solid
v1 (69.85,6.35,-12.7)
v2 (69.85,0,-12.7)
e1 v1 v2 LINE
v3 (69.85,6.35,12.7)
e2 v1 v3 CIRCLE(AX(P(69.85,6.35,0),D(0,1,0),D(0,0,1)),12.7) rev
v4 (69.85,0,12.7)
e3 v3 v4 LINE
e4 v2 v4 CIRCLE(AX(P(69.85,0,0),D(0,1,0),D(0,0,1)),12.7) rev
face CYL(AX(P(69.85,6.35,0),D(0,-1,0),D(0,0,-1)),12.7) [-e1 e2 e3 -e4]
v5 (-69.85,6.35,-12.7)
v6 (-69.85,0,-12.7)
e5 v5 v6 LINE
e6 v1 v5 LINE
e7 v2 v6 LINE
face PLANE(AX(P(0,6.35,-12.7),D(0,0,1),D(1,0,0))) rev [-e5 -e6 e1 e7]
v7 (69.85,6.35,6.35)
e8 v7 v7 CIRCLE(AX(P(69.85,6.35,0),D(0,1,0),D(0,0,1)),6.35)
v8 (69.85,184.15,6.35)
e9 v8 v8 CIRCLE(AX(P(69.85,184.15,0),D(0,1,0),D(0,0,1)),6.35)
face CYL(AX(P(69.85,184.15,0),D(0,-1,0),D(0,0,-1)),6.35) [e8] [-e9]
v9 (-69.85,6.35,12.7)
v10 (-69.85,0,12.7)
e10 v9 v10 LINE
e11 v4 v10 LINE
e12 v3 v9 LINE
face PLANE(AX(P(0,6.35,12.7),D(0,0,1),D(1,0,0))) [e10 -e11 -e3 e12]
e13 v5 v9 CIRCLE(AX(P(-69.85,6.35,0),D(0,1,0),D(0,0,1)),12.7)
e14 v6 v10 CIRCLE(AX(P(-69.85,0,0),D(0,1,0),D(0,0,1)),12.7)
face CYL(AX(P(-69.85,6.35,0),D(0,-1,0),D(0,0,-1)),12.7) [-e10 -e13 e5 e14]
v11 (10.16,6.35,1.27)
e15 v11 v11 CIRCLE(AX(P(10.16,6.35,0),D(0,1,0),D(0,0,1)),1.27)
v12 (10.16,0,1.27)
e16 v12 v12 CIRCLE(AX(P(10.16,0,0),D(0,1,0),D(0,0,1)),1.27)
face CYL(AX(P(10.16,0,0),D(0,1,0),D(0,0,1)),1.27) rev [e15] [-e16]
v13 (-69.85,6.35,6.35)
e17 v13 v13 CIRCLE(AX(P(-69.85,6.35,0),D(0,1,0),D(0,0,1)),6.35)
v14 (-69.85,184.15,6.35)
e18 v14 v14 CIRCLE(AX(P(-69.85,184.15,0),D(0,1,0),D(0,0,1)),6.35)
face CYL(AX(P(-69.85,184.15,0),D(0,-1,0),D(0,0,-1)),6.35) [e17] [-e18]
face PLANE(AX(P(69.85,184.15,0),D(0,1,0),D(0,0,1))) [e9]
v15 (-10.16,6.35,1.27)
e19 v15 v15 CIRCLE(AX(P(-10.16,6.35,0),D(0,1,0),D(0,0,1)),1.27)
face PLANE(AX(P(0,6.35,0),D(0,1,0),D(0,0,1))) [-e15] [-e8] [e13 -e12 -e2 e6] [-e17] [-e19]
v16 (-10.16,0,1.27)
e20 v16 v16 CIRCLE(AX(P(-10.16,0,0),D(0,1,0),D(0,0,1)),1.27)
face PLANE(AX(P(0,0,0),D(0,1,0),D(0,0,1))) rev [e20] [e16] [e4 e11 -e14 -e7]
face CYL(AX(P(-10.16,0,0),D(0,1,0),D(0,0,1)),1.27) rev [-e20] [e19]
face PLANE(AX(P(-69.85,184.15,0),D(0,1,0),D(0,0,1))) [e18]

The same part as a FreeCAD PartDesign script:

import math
import FreeCAD as App
import Part
import Sketcher
Q = App.Units.Quantity

doc = App.newDocument("Part")
body = doc.addObject("PartDesign::Body", "Body")

# Sketch on XZ plane
sketch1 = doc.addObject("Sketcher::SketchObject", "Sketch")
body.addObject(sketch1)
sketch1.AttachmentSupport = (doc.XZ_Plane, [""])
sketch1.MapMode = "FlatFace"
sketch1.addGeometry([
    Part.ArcOfCircle(Part.Circle(App.Vector(-70, 0, 0), App.Vector(0, 0, 1), 13), math.radians(90), math.radians(270)),
    Part.LineSegment(App.Vector(-70, 13, 0), App.Vector(70, 13, 0)),
    Part.ArcOfCircle(Part.Circle(App.Vector(70, 0, 0), App.Vector(0, 0, 1), 13), math.radians(-90), math.radians(90)),
    Part.LineSegment(App.Vector(70, -13, 0), App.Vector(-70, -13, 0)),
], False)
sketch1.addConstraint([
    Sketcher.Constraint("Tangent", 0, 1, 1, 1),
    Sketcher.Constraint("Tangent", 1, 2, 2, 2),
    Sketcher.Constraint("Tangent", 2, 1, 3, 1),
    Sketcher.Constraint("Tangent", 3, 2, 0, 2),
    Sketcher.Constraint("Horizontal", 1),
    Sketcher.Constraint("Horizontal", 3),
    Sketcher.Constraint("Symmetric", 0, 3, 2, 3, -1, 1),
    Sketcher.Constraint("Radius", 0, Q("0.5 in")),
    Sketcher.Constraint("DistanceX", 1, 1, 1, 2, Q("5.5 in")),
])
pad1 = doc.addObject("PartDesign::Pad", "Pad")
body.addObject(pad1)
pad1.Profile = sketch1
pad1.Length = Q("0.25 in")
pad1.Reversed = True

# Sketch on XZ plane
sketch2 = doc.addObject("Sketcher::SketchObject", "Sketch001")
body.addObject(sketch2)
sketch2.AttachmentSupport = (doc.XZ_Plane, [""])
sketch2.MapMode = "FlatFace"
sketch2.AttachmentOffset = App.Placement(App.Vector(0, 0, -0.25 * 25.4), App.Rotation())
sketch2.addGeometry([
    Part.Circle(App.Vector(-70, 0, 0), App.Vector(0, 0, 1), 6),
    Part.Circle(App.Vector(70, 0, 0), App.Vector(0, 0, 1), 6),
], False)
sketch2.addConstraint([
    Sketcher.Constraint("Equal", 0, 1),
    Sketcher.Constraint("Symmetric", 0, 3, 1, 3, -1, 1),
    Sketcher.Constraint("PointOnObject", 0, 3, -1),
    Sketcher.Constraint("Diameter", 0, Q("0.5 in")),
    Sketcher.Constraint("DistanceX", 0, 3, 1, 3, Q("5.5 in")),
])
pad2 = doc.addObject("PartDesign::Pad", "Pad001")
body.addObject(pad2)
pad2.Profile = sketch2
pad2.Length = Q("7 in")
pad2.Reversed = True

# Sketch on XZ plane
sketch3 = doc.addObject("Sketcher::SketchObject", "Sketch002")
body.addObject(sketch3)
sketch3.AttachmentSupport = (doc.XZ_Plane, [""])
sketch3.MapMode = "FlatFace"
sketch3.AttachmentOffset = App.Placement(App.Vector(0, 0, -0.25 * 25.4), App.Rotation())
sketch3.addGeometry([
    Part.Circle(App.Vector(-10.2, 0, 0), App.Vector(0, 0, 1), 1.3),
    Part.Circle(App.Vector(10.2, 0, 0), App.Vector(0, 0, 1), 1.3),
], False)
sketch3.addConstraint([
    Sketcher.Constraint("Equal", 0, 1),
    Sketcher.Constraint("Symmetric", 0, 3, 1, 3, -1, 1),
    Sketcher.Constraint("PointOnObject", 0, 3, -1),
    Sketcher.Constraint("Diameter", 0, Q("0.1 in")),
    Sketcher.Constraint("DistanceX", 0, 3, -1, 1, Q("0.4 in")),
])
pocket1 = doc.addObject("PartDesign::Pocket", "Pocket")
body.addObject(pocket1)
pocket1.Profile = sketch3
pocket1.Type = "ThroughAll"
pocket1.Reversed = True

doc.recompute()
